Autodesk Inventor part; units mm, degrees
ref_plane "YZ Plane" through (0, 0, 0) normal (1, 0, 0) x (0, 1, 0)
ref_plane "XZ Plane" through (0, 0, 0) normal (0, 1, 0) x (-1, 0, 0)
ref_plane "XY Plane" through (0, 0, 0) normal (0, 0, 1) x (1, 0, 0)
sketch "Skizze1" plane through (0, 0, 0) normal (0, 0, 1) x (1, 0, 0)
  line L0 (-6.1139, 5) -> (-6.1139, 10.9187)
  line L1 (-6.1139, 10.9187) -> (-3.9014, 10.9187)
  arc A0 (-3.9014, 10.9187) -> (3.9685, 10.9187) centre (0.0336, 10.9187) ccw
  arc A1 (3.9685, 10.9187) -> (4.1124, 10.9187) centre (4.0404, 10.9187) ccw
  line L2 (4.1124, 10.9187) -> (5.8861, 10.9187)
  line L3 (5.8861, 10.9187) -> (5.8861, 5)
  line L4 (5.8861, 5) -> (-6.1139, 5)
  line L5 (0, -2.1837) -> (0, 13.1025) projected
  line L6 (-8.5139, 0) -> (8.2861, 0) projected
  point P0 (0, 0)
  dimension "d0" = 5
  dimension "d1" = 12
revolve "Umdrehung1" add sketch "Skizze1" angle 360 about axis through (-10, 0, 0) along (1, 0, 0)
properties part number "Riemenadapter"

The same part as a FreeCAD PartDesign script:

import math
import FreeCAD as App
import Part
import Sketcher
Q = App.Units.Quantity

doc = App.newDocument("Part")
params = doc.addObject("Spreadsheet::Sheet", "Params")
for row, (alias, value) in enumerate([
    ("sketch1_width", "12 mm"),
    ("revolution_angle", "360 deg"),
], start=1):
    params.set(f"A{row}", alias)
    params.set(f"B{row}", "=" + value)
    params.setAlias(f"B{row}", alias)

body = doc.addObject("PartDesign::Body", "Body")

sketch1 = doc.addObject("Sketcher::SketchObject", "Sketch")
body.addObject(sketch1)
sketch1.AttachmentSupport = (doc.XY_Plane, [""])
sketch1.MapMode = "FlatFace"
sketch1.addGeometry([
    Part.LineSegment(App.Vector(-6.11, 10.92, 0), App.Vector(-6.11, 5, 0)),
    Part.LineSegment(App.Vector(-6.11, 5, 0), App.Vector(5.89, 5, 0)),
    Part.LineSegment(App.Vector(5.89, 5, 0), App.Vector(5.89, 10.92, 0)),
    Part.LineSegment(App.Vector(5.89, 10.92, 0), App.Vector(4.11, 10.92, 0)),
    Part.ArcOfCircle(Part.Circle(App.Vector(4.04, 10.92, 0), App.Vector(0, 0, 1), 0.07), math.radians(180), math.radians(360)),
    Part.ArcOfCircle(Part.Circle(App.Vector(0.03, 10.92, 0), App.Vector(0, 0, 1), 3.94), math.radians(180), math.radians(360)),
    Part.LineSegment(App.Vector(-3.9, 10.92, 0), App.Vector(-6.11, 10.92, 0)),
], False)
sketch1.addConstraint([
    Sketcher.Constraint("Coincident", 0, 2, 1, 1),
    Sketcher.Constraint("Coincident", 1, 2, 2, 1),
    Sketcher.Constraint("Coincident", 2, 2, 3, 1),
    Sketcher.Constraint("Coincident", 3, 2, 4, 2),
    Sketcher.Constraint("Tangent", 4, 1, 5, 2),
    Sketcher.Constraint("Coincident", 5, 1, 6, 1),
    Sketcher.Constraint("Coincident", 6, 2, 0, 1),
    Sketcher.Constraint("Vertical", 0),
    Sketcher.Constraint("Horizontal", 1),
    Sketcher.Constraint("Vertical", 2),
    Sketcher.Constraint("Horizontal", 3),
    Sketcher.Constraint("Horizontal", 6),
    Sketcher.Constraint("Horizontal", 4, 3, 5, 3),
    Sketcher.Constraint("Horizontal", 5, 3, 2, 2),
    Sketcher.Constraint("Horizontal", 4, 1, 5, 1),
    Sketcher.Constraint("DistanceX", 1, 1, 1, 2, Q("12 mm")),
    Sketcher.Constraint("DistanceY", -1, 1, 0, 2, Q("5 mm")),
    Sketcher.Constraint("Radius", 4, Q("0.072 mm")),
    Sketcher.Constraint("Radius", 5, Q("3.935 mm")),
    Sketcher.Constraint("DistanceX", 3, 2, 3, 1, Q("1.7737 mm")),
    Sketcher.Constraint("DistanceY", 0, 2, 0, 1, Q("5.9187 mm")),
    Sketcher.Constraint("DistanceX", 0, 2, -1, 1, Q("6.114 mm")),
])
sketch1.setExpression("Constraints[15]", "Params.sketch1_width")
revolution = doc.addObject("PartDesign::Revolution", "Revolution")
body.addObject(revolution)
revolution.Profile = sketch1
revolution.ReferenceAxis = (sketch1, ["H_Axis"])
revolution.setExpression("Angle", "Params.revolution_angle")

doc.recompute()
